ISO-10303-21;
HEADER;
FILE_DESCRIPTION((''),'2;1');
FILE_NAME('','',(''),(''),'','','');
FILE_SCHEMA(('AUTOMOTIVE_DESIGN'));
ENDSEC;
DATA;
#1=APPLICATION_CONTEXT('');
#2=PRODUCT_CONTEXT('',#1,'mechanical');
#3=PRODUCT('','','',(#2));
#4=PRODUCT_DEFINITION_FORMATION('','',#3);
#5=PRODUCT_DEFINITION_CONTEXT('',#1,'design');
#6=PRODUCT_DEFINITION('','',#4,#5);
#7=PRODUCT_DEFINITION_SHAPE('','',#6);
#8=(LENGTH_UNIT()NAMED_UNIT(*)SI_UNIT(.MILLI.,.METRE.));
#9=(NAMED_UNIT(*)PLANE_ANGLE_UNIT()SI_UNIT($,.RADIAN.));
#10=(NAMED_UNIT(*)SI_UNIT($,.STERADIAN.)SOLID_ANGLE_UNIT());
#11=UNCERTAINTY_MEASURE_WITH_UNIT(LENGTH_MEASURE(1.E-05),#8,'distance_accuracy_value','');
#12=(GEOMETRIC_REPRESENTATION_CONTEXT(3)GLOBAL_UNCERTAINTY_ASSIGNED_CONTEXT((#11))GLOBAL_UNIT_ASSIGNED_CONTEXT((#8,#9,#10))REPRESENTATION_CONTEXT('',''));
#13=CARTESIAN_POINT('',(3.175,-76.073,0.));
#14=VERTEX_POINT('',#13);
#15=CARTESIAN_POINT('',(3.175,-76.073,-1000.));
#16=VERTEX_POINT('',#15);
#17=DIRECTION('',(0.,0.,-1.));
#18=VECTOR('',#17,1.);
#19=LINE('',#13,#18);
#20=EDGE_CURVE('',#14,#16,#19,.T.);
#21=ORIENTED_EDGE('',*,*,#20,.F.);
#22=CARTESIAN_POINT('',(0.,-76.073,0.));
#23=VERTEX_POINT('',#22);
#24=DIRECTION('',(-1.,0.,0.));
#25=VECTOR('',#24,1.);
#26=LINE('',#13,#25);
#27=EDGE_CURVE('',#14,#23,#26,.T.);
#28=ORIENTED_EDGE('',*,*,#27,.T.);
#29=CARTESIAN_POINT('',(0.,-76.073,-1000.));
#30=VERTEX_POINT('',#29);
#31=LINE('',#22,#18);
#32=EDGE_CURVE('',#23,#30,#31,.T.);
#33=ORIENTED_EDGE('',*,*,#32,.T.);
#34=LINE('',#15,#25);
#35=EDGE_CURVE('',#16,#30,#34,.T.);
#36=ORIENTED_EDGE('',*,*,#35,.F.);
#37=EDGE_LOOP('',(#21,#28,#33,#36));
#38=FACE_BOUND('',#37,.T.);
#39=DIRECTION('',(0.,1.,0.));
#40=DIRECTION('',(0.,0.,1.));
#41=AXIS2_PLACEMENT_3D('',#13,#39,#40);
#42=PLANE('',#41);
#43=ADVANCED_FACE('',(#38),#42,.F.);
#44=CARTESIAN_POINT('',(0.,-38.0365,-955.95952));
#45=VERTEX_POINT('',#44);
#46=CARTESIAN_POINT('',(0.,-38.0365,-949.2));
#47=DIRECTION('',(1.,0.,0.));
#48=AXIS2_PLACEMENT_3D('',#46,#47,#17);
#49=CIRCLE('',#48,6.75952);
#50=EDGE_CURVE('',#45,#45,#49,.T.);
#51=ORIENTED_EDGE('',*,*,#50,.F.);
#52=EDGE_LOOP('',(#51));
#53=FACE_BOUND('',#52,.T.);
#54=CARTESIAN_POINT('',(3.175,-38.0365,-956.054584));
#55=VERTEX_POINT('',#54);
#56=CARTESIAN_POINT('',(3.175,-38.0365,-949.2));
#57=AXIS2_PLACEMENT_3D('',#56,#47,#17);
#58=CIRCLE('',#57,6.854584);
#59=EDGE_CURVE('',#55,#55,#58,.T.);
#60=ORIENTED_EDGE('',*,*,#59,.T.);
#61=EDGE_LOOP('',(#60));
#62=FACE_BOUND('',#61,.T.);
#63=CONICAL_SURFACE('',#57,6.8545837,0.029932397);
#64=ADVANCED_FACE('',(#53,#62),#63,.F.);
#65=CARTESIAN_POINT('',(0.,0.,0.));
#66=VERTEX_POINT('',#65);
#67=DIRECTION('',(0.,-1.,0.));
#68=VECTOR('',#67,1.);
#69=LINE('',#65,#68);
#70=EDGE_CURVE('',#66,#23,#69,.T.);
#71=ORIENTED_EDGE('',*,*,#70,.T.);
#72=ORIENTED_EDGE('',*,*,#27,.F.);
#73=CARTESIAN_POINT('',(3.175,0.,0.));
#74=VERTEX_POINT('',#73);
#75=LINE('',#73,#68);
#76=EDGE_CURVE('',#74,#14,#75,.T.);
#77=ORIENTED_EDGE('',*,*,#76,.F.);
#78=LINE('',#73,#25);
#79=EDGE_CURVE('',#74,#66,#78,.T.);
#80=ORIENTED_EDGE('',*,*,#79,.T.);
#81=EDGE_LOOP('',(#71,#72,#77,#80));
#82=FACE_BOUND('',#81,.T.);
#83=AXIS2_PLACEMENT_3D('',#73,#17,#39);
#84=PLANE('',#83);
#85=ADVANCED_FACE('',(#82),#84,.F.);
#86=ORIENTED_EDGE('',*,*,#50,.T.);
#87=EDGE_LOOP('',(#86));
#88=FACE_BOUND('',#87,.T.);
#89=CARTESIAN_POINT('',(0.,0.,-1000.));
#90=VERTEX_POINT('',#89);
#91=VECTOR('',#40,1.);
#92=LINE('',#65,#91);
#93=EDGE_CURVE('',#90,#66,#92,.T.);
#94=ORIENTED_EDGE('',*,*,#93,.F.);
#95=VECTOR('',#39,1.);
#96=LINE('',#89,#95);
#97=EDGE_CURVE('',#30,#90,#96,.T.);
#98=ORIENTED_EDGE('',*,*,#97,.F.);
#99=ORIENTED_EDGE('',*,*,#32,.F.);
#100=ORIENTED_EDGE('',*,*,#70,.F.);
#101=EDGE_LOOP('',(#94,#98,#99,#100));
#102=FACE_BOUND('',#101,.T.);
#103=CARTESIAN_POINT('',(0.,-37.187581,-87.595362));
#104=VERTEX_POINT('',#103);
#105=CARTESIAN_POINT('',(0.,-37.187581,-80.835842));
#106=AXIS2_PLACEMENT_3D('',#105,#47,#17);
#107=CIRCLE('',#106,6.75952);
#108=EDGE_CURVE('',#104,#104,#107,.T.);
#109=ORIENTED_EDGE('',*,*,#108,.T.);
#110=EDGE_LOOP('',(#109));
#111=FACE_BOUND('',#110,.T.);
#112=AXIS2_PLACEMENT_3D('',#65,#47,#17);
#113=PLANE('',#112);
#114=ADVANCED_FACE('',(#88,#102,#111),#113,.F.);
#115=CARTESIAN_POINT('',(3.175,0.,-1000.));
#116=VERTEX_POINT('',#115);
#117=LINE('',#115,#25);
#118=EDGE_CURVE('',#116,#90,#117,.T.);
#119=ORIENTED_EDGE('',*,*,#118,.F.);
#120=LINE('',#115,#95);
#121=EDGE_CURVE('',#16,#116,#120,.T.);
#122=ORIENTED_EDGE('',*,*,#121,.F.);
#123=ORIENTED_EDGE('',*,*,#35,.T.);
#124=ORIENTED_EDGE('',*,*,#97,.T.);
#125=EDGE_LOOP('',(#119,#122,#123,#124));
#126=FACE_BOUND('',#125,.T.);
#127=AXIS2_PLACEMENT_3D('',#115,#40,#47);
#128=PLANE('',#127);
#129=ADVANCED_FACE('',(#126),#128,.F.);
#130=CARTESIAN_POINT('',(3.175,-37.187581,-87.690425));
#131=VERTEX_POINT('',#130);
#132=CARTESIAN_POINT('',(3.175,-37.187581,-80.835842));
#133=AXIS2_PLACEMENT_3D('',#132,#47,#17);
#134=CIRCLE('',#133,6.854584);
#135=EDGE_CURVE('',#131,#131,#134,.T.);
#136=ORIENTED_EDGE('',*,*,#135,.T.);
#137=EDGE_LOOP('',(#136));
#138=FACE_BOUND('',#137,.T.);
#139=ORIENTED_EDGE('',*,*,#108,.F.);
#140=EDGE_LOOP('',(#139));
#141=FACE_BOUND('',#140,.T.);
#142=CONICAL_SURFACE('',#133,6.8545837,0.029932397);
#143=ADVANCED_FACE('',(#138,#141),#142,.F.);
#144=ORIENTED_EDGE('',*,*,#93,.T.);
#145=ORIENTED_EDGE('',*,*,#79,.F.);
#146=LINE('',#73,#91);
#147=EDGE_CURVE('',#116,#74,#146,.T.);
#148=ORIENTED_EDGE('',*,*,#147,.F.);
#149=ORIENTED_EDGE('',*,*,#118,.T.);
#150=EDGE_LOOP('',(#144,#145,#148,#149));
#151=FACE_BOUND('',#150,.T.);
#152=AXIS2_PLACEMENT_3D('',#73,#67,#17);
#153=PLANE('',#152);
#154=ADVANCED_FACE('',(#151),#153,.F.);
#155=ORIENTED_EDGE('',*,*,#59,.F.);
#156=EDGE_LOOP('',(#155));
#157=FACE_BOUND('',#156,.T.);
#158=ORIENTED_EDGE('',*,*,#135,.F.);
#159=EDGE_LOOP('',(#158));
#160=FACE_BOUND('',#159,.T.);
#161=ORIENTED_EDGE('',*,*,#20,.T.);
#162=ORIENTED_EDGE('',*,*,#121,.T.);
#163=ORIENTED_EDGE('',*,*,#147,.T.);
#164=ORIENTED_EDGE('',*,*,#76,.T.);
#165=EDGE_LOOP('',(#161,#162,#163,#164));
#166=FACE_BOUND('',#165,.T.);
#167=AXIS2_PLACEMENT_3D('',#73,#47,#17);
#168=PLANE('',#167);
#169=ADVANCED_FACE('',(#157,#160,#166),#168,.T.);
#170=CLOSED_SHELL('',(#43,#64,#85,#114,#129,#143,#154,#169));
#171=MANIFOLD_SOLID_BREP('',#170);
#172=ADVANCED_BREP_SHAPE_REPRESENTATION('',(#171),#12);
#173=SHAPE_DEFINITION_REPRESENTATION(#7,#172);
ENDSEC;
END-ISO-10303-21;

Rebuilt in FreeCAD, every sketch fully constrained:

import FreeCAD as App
import Part
import Sketcher
Q = App.Units.Quantity

doc = App.newDocument("Part")
params = doc.addObject("Spreadsheet::Sheet", "Params")
for row, (alias, value) in enumerate([
    ("sketch1_width", "2.995 in"),
    ("pad1_length", "0.125 in"),
    ("sketch2_width", "0.39 in"),
    ("sketch2_width2", "0.125 in"),
    ("sketch2_height", "0.219 in"),
    ("groove_angle", "360 deg"),
    ("sketch3_width", "0.39 in"),
    ("sketch3_width2", "0.125 in"),
    ("sketch3_height", "0.219 in"),
    ("groove2_angle", "360 deg"),
], start=1):
    params.set(f"A{row}", alias)
    params.set(f"B{row}", "=" + value)
    params.setAlias(f"B{row}", alias)

body = doc.addObject("PartDesign::Body", "Body")

# Sketch on YZ plane
sketch1 = body.newObject("Sketcher::SketchObject", "Sketch")
sketch1.AttachmentSupport = (doc.getObject("YZ_Plane"), [""])
sketch1.MapMode = "FlatFace"
sketch1.addGeometry([
    Part.LineSegment(App.Vector(0, 0, 0), App.Vector(-76.073, 0, 0)),
    Part.LineSegment(App.Vector(-76.073, 0, 0), App.Vector(-76.073, -1000, 0)),
    Part.LineSegment(App.Vector(-76.073, -1000, 0), App.Vector(0, -1000, 0)),
    Part.LineSegment(App.Vector(0, -1000, 0), App.Vector(0, 0, 0)),
], False)
sketch1.addConstraint([
    Sketcher.Constraint("Coincident", 0, 2, 1, 1),
    Sketcher.Constraint("Coincident", 1, 2, 2, 1),
    Sketcher.Constraint("Coincident", 2, 2, 3, 1),
    Sketcher.Constraint("Coincident", 3, 2, 0, 1),
    Sketcher.Constraint("Horizontal", 0),
    Sketcher.Constraint("Vertical", 1),
    Sketcher.Constraint("Horizontal", 2),
    Sketcher.Constraint("Vertical", 3),
    Sketcher.Constraint("Coincident", 3, 2, -1, 1),
    Sketcher.Constraint("DistanceX", 0, 2, 0, 1, Q("2.995 in")),
    Sketcher.Constraint("DistanceY", 1, 2, 1, 1, Q("1000 mm")),
])
sketch1.setExpression("Constraints[9]", "Params.sketch1_width")
pad1 = body.newObject("PartDesign::Pad", "Pad")
pad1.Profile = sketch1
pad1.setExpression("Length", "Params.pad1_length")

# Sketch on XZ plane
sketch2 = body.newObject("Sketcher::SketchObject", "Sketch001")
sketch2.AttachmentSupport = (doc.getObject("XZ_Plane"), [""])
sketch2.MapMode = "FlatFace"
sketch2.AttachmentOffset = App.Placement(App.Vector(0, 0, 37.187581), App.Rotation())
sketch2.addGeometry([
    Part.LineSegment(App.Vector(0, -80.835842, 0), App.Vector(3.175, -80.835842, 0)),  # 0
    Part.LineSegment(App.Vector(3.175, -80.835842, 0), App.Vector(3.175, -87.690425, 0)),  # 1
    Part.LineSegment(App.Vector(3.175, -87.690425, 0), App.Vector(-6.731, -87.393826, 0)),  # 2
    Part.LineSegment(App.Vector(-6.731, -87.393826, 0), App.Vector(-6.731, -86.398442, 0)),  # 3
    Part.LineSegment(App.Vector(-6.731, -86.398442, 0), App.Vector(0, -86.398442, 0)),  # 4
    Part.LineSegment(App.Vector(0, -86.398442, 0), App.Vector(0, -80.835842, 0)),  # 5
], False)
sketch2.addGeometry(Part.LineSegment(App.Vector(3.175, -80.835842, 0), App.Vector(-6.731, -80.835842, 0)), True)  # axis
sketch2.addConstraint([
    Sketcher.Constraint("Coincident", 0, 2, 1, 1),
    Sketcher.Constraint("Coincident", 1, 2, 2, 1),
    Sketcher.Constraint("Coincident", 2, 2, 3, 1),
    Sketcher.Constraint("Coincident", 3, 2, 4, 1),
    Sketcher.Constraint("Coincident", 4, 2, 5, 1),
    Sketcher.Constraint("Coincident", 5, 2, 0, 1),
    Sketcher.Constraint("Horizontal", 0),
    Sketcher.Constraint("Vertical", 1),
    Sketcher.Constraint("Vertical", 3),
    Sketcher.Constraint("Horizontal", 4),
    Sketcher.Constraint("Vertical", 5),
    Sketcher.Constraint("Horizontal", 6),
    Sketcher.Constraint("Coincident", 6, 1, 0, 2),
    Sketcher.Constraint("PointOnObject", 4, 2, -2),
    Sketcher.Constraint("Vertical", 3, 2, 6, 2),
    Sketcher.Constraint("DistanceX", 6, 2, 6, 1, Q("0.39 in")),
    Sketcher.Constraint("DistanceX", 0, 1, 0, 2, Q("0.125 in")),
    Sketcher.Constraint("DistanceY", 5, 1, 5, 2, Q("0.219 in")),
    Sketcher.Constraint("DistanceY", 1, 2, 2, 2, Q("0.296599 mm")),
    Sketcher.Constraint("DistanceY", 1, 2, 1, 1, Q("6.854584 mm")),
    Sketcher.Constraint("DistanceY", 0, 2, -1, 1, Q("80.835842 mm")),
])
sketch2.setExpression("Constraints[15]", "Params.sketch2_width")
sketch2.setExpression("Constraints[16]", "Params.sketch2_width2")
sketch2.setExpression("Constraints[17]", "Params.sketch2_height")
groove = body.newObject("PartDesign::Groove", "Groove")
groove.Profile = sketch2
groove.ReferenceAxis = (sketch2, ["Axis0"])
groove.setExpression("Angle", "Params.groove_angle")

# Sketch on XZ plane
sketch3 = body.newObject("Sketcher::SketchObject", "Sketch002")
sketch3.AttachmentSupport = (doc.getObject("XZ_Plane"), [""])
sketch3.MapMode = "FlatFace"
sketch3.AttachmentOffset = App.Placement(App.Vector(0, 0, 1.4975 * 25.4), App.Rotation())
sketch3.addGeometry([
    Part.LineSegment(App.Vector(0, -949.2, 0), App.Vector(3.175, -949.2, 0)),  # 0
    Part.LineSegment(App.Vector(3.175, -949.2, 0), App.Vector(3.175, -956.054584, 0)),  # 1
    Part.LineSegment(App.Vector(3.175, -956.054584, 0), App.Vector(-6.731, -955.757985, 0)),  # 2
    Part.LineSegment(App.Vector(-6.731, -955.757985, 0), App.Vector(-6.731, -954.7626, 0)),  # 3
    Part.LineSegment(App.Vector(-6.731, -954.7626, 0), App.Vector(0, -954.7626, 0)),  # 4
    Part.LineSegment(App.Vector(0, -954.7626, 0), App.Vector(0, -949.2, 0)),  # 5
], False)
sketch3.addGeometry(Part.LineSegment(App.Vector(3.175, -949.2, 0), App.Vector(-6.731, -949.2, 0)), True)  # axis
sketch3.addConstraint([
    Sketcher.Constraint("Coincident", 0, 2, 1, 1),
    Sketcher.Constraint("Coincident", 1, 2, 2, 1),
    Sketcher.Constraint("Coincident", 2, 2, 3, 1),
    Sketcher.Constraint("Coincident", 3, 2, 4, 1),
    Sketcher.Constraint("Coincident", 4, 2, 5, 1),
    Sketcher.Constraint("Coincident", 5, 2, 0, 1),
    Sketcher.Constraint("Horizontal", 0),
    Sketcher.Constraint("Vertical", 1),
    Sketcher.Constraint("Vertical", 3),
    Sketcher.Constraint("Horizontal", 4),
    Sketcher.Constraint("Vertical", 5),
    Sketcher.Constraint("Horizontal", 6),
    Sketcher.Constraint("Coincident", 6, 1, 0, 2),
    Sketcher.Constraint("PointOnObject", 4, 2, -2),
    Sketcher.Constraint("Vertical", 3, 2, 6, 2),
    Sketcher.Constraint("DistanceX", 6, 2, 6, 1, Q("0.39 in")),
    Sketcher.Constraint("DistanceX", 0, 1, 0, 2, Q("0.125 in")),
    Sketcher.Constraint("DistanceY", 5, 1, 5, 2, Q("0.219 in")),
    Sketcher.Constraint("DistanceY", 0, 2, -1, 1, Q("949.2 mm")),
    Sketcher.Constraint("DistanceY", 1, 2, 2, 2, Q("0.296599 mm")),
    Sketcher.Constraint("DistanceY", 1, 2, 1, 1, Q("6.854584 mm")),
])
sketch3.setExpression("Constraints[15]", "Params.sketch3_width")
sketch3.setExpression("Constraints[16]", "Params.sketch3_width2")
sketch3.setExpression("Constraints[17]", "Params.sketch3_height")
groove2 = body.newObject("PartDesign::Groove", "Groove001")
groove2.Profile = sketch3
groove2.ReferenceAxis = (sketch3, ["Axis0"])
groove2.setExpression("Angle", "Params.groove2_angle")

doc.recompute()
